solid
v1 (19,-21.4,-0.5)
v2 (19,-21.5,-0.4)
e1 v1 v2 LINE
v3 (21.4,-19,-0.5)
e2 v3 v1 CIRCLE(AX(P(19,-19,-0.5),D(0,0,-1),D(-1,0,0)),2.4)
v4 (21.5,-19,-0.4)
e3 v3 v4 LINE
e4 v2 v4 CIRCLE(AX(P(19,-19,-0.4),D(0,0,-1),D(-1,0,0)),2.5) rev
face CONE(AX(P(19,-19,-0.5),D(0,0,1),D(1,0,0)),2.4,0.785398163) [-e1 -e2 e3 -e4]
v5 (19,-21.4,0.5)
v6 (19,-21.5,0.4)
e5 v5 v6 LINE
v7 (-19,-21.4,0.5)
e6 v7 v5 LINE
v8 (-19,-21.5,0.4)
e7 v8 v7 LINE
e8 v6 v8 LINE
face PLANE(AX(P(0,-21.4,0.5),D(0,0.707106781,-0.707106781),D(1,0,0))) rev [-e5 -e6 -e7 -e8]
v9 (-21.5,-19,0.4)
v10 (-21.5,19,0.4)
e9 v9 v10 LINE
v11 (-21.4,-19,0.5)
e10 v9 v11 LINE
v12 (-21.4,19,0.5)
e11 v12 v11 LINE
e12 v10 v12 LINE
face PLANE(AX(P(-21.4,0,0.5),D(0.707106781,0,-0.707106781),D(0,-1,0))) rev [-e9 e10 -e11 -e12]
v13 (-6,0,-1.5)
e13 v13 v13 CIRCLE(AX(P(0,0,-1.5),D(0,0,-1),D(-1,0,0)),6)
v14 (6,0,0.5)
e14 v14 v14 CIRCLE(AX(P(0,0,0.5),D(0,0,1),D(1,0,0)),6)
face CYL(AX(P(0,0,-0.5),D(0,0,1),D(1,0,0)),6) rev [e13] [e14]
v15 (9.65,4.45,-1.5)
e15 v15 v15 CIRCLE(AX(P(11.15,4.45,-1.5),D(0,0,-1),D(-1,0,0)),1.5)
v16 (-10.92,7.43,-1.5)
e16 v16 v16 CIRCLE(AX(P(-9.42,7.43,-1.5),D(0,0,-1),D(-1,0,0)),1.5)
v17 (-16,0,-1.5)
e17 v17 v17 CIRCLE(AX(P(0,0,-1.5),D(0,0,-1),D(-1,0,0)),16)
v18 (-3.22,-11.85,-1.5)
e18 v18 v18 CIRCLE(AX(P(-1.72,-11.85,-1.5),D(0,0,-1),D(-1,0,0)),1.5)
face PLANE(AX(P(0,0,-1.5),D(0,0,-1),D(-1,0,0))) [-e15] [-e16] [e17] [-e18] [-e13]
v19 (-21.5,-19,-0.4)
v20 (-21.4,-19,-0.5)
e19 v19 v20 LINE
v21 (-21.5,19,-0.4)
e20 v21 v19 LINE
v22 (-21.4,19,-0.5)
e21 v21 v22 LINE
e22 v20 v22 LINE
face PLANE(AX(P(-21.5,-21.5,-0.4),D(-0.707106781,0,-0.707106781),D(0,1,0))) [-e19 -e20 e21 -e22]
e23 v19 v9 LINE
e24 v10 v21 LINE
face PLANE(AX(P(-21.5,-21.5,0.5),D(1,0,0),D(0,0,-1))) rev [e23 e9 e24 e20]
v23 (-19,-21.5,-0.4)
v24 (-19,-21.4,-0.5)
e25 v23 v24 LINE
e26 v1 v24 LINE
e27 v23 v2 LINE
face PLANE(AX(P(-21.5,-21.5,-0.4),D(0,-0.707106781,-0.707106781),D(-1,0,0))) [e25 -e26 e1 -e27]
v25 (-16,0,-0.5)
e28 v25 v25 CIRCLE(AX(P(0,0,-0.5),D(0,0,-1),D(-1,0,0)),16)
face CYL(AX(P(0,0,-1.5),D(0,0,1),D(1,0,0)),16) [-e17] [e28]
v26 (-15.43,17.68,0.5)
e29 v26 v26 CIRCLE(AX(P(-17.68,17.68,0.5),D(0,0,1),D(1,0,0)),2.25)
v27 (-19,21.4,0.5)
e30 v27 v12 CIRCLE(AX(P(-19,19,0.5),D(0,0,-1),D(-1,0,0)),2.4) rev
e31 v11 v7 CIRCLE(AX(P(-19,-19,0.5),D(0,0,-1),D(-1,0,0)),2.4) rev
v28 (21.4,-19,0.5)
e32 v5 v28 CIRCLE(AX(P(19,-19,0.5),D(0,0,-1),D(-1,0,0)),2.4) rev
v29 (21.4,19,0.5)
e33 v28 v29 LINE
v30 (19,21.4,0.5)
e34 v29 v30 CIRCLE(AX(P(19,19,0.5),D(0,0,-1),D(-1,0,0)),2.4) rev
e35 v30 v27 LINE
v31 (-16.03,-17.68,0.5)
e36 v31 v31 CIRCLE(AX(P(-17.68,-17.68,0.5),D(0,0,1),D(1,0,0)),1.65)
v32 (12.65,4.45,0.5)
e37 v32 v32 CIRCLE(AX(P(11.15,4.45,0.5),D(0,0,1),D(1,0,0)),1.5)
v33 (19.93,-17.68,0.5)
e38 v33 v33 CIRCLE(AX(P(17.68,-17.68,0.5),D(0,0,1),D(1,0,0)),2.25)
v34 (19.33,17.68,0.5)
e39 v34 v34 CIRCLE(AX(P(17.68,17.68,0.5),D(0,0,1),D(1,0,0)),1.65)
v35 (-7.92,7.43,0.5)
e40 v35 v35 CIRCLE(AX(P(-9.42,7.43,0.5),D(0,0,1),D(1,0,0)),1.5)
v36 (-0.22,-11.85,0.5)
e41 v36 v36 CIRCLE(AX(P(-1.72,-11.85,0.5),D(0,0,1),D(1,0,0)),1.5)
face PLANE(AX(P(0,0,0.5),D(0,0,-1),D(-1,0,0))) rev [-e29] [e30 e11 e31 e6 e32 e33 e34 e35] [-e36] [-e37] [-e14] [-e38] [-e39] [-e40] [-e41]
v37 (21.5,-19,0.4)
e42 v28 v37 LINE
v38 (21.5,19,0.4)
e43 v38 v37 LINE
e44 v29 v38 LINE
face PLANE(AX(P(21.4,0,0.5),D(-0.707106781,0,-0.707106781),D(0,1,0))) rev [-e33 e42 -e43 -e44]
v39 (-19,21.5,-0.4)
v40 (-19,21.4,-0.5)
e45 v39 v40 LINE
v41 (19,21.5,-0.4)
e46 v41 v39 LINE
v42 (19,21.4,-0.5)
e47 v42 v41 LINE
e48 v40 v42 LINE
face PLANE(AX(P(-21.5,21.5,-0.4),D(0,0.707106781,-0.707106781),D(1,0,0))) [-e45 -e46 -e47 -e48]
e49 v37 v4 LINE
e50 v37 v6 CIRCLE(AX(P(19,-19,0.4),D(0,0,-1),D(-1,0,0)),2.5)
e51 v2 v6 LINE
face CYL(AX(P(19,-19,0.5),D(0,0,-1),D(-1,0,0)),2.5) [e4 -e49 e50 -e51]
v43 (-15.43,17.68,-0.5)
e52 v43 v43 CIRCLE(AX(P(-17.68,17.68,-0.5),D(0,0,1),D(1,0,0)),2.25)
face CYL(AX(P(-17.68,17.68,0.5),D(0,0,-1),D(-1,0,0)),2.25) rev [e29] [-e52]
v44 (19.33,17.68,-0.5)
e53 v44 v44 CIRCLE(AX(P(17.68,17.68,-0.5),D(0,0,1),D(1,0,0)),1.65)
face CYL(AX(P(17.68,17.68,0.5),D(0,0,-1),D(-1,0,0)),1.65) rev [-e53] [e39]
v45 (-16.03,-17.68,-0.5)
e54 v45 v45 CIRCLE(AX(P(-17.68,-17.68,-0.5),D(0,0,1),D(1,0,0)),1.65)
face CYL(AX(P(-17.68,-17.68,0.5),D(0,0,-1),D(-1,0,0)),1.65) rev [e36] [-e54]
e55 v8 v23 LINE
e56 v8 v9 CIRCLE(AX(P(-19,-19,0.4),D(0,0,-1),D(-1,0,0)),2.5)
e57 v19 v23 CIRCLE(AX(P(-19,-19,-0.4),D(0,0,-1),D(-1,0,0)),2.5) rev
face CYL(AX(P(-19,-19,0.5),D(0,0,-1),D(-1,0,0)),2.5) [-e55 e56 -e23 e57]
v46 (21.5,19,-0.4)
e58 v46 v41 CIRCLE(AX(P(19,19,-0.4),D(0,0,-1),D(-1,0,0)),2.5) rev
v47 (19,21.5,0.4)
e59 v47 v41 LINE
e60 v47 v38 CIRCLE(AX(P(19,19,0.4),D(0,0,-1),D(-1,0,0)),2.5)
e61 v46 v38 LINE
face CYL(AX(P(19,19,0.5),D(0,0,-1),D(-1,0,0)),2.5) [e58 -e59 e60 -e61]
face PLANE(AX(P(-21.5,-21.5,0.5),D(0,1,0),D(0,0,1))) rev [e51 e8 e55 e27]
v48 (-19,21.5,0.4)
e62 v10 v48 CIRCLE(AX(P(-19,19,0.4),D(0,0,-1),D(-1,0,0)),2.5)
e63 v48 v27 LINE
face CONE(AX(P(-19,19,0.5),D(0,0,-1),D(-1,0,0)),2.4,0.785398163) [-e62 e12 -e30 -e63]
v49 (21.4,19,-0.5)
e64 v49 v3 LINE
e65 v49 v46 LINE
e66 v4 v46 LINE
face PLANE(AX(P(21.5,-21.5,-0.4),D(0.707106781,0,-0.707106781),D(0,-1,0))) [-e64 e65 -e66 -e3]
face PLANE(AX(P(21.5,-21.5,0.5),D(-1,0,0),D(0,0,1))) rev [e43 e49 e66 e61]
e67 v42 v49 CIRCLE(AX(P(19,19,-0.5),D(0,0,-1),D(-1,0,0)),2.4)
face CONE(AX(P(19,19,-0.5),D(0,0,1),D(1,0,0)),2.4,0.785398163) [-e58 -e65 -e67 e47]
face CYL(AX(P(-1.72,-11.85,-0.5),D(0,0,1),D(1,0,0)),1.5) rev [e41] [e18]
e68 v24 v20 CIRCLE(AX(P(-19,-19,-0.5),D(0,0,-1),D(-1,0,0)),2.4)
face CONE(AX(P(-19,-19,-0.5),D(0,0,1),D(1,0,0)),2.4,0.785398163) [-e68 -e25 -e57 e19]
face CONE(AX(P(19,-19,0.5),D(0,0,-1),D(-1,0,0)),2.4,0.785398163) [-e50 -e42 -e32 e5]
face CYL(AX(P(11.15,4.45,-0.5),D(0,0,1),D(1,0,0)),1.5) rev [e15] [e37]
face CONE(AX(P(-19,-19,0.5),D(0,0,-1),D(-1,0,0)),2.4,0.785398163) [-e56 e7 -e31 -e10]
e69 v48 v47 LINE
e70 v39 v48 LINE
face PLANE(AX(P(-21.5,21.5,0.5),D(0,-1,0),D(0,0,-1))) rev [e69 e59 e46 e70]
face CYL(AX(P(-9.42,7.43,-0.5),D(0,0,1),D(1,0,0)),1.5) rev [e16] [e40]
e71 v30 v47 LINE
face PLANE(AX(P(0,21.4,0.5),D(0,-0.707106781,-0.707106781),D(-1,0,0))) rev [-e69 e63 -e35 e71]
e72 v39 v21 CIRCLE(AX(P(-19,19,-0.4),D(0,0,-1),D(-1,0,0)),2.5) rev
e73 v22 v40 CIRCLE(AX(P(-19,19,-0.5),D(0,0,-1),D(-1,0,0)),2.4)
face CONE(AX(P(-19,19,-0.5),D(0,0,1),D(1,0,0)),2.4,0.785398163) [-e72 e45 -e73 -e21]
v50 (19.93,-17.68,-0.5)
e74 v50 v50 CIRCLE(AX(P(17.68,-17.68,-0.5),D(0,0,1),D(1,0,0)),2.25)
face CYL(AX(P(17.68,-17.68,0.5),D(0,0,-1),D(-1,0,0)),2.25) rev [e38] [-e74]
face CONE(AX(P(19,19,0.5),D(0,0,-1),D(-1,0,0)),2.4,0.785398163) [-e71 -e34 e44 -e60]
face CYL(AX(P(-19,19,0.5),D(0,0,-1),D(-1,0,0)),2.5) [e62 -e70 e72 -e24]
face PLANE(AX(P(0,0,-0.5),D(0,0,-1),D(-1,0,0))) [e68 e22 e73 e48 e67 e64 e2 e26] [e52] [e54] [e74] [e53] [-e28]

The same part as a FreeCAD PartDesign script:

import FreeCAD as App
import Part
import Sketcher

V = App.Vector
Q = App.Units.Quantity


def edges_at(feature, points):
    """Names of the edges that pass closest to the given points."""
    edges = feature.Shape.Edges
    near = lambda p: min(range(len(edges)), key=lambda i: edges[i].distToShape(Part.Vertex(*p))[0])
    return sorted({f"Edge{near(p) + 1}" for p in points})

doc = App.newDocument("Part")
params = doc.addObject("Spreadsheet::Sheet", "Params")
for row, (alias, value) in enumerate([
    ("sketch1_diameter", "3.3 mm"),
    ("sketch1_diameter2", "4.5 mm"),
    ("sketch1_width", "43 mm"),
    ("pad1_length", "1 mm"),
    ("sketch2_diameter", "12 mm"),
    ("pocket1_length", "1 mm"),
    ("fillet_radius", "2.5 mm"),
    ("chamfer_size", "0.1 mm"),
    ("sketch3_diameter", "3 mm"),
    ("sketch4_diameter", "32 mm"),
    ("sketch4_diameter2", "3 mm"),
    ("sketch4_diameter3", "12 mm"),
    ("pad2_length", "1 mm"),
], start=1):
    params.set(f"A{row}", alias)
    params.set(f"B{row}", "=" + value)
    params.setAlias(f"B{row}", alias)

body = doc.addObject("PartDesign::Body", "Body")

# Sketch on XY plane
sketch1 = doc.addObject("Sketcher::SketchObject", "Sketch")
body.addObject(sketch1)
sketch1.AttachmentSupport = (doc.XY_Plane, [""])
sketch1.MapMode = "FlatFace"
sketch1.addGeometry([
    Part.LineSegment(V(-21.5, 21.5, 0), V(-21.5, -21.5, 0)),  # 0
    Part.LineSegment(V(-21.5, -21.5, 0), V(21.5, -21.5, 0)),  # 1
    Part.LineSegment(V(21.5, -21.5, 0), V(21.5, 21.5, 0)),  # 2
    Part.LineSegment(V(21.5, 21.5, 0), V(-21.5, 21.5, 0)),  # 3
    Part.Circle(V(-17.7, -17.7, 0), V(0, 0, 1), 1.6),  # 4
    Part.Circle(V(17.7, -17.7, 0), V(0, 0, 1), 2.2),  # 5
    Part.Circle(V(-17.7, 17.7, 0), V(0, 0, 1), 2.2),  # 6
    Part.Circle(V(17.7, 17.7, 0), V(0, 0, 1), 1.6),  # 7
], False)
sketch1.addConstraint([
    Sketcher.Constraint("Coincident", 0, 2, 1, 1),
    Sketcher.Constraint("Coincident", 1, 2, 2, 1),
    Sketcher.Constraint("Coincident", 2, 2, 3, 1),
    Sketcher.Constraint("Coincident", 3, 2, 0, 1),
    Sketcher.Constraint("Vertical", 0),
    Sketcher.Constraint("Horizontal", 1),
    Sketcher.Constraint("Vertical", 2),
    Sketcher.Constraint("Horizontal", 3),
    Sketcher.Constraint("Equal", 5, 6),
    Sketcher.Constraint("Equal", 4, 7),
    Sketcher.Constraint("Symmetric", 5, 3, 6, 3, -1, 1),
    Sketcher.Constraint("Symmetric", 4, 3, 7, 3, -1, 1),
    Sketcher.Constraint("Symmetric", 0, 2, 2, 2, -1, 1),
    Sketcher.Constraint("Symmetric", 4, 3, 5, 3, -2),
    Sketcher.Constraint("Equal", 3, 0),
    Sketcher.Constraint("Diameter", 4, Q("3.3 mm")),
    Sketcher.Constraint("Diameter", 5, Q("4.5 mm")),
    Sketcher.Constraint("DistanceX", 1, 1, 1, 2, Q("43 mm")),
    Sketcher.Constraint("DistanceX", 4, 3, -1, 1, Q("17.68 mm")),
    Sketcher.Constraint("DistanceY", 4, 3, -1, 1, Q("17.68 mm")),
])
sketch1.setExpression("Constraints[15]", "Params.sketch1_diameter")
sketch1.setExpression("Constraints[16]", "Params.sketch1_diameter2")
sketch1.setExpression("Constraints[17]", "Params.sketch1_width")
pad1 = doc.addObject("PartDesign::Pad", "Pad")
body.addObject(pad1)
pad1.Profile = sketch1
pad1.setExpression("Length", "Params.pad1_length")
pad1.Midplane = True

# Sketch on XY plane
sketch2 = doc.addObject("Sketcher::SketchObject", "Sketch001")
body.addObject(sketch2)
sketch2.AttachmentSupport = (doc.XY_Plane, [""])
sketch2.MapMode = "FlatFace"
sketch2.AttachmentOffset = App.Placement(V(0, 0, 0.5), App.Rotation())
sketch2.addGeometry(Part.Circle(V(0, 0, 0), V(0, 0, 1), 6), False)
sketch2.addConstraint([
    Sketcher.Constraint("Coincident", 0, 3, -1, 1),
    Sketcher.Constraint("Diameter", 0, Q("12 mm")),
])
sketch2.setExpression("Constraints[1]", "Params.sketch2_diameter")
pocket1 = doc.addObject("PartDesign::Pocket", "Pocket")
body.addObject(pocket1)
pocket1.Profile = sketch2
pocket1.setExpression("Length", "Params.pocket1_length")
doc.recompute()

fillet = doc.addObject("PartDesign::Fillet", "Fillet")
body.addObject(fillet)
fillet.Base = (pocket1, edges_at(pocket1, [
    (21.5, -21.5, 0),
    (-21.5, -21.5, 0),
    (-21.5, 21.5, 0),
    (21.5, 21.5, 0),
]))
fillet.setExpression("Radius", "Params.fillet_radius")
doc.recompute()

chamfer = doc.addObject("PartDesign::Chamfer", "Chamfer")
body.addObject(chamfer)
chamfer.Base = (fillet, edges_at(fillet, [
    (0, -21.5, -0.5),
    (0, -21.5, 0.5),
    (21.5, 0, -0.5),
    (-21.5, 0, -0.5),
    (0, 21.5, -0.5),
    (-20.768, 20.768, -0.5),
    (20.768, 20.768, -0.5),
    (20.768, -20.768, -0.5),
    (-20.768, -20.768, -0.5),
    (-21.5, 0, 0.5),
    (21.5, 0, 0.5),
    (0, 21.5, 0.5),
    (-20.768, 20.768, 0.5),
    (20.768, 20.768, 0.5),
    (20.768, -20.768, 0.5),
    (-20.768, -20.768, 0.5),
]))
chamfer.setExpression("Size", "Params.chamfer_size")

# Sketch on XY plane
sketch3 = doc.addObject("Sketcher::SketchObject", "Sketch002")
body.addObject(sketch3)
sketch3.AttachmentSupport = (doc.XY_Plane, [""])
sketch3.MapMode = "FlatFace"
sketch3.AttachmentOffset = App.Placement(V(0, 0, 0.5), App.Rotation())
sketch3.addGeometry([
    Part.Circle(V(-9.4, 7.4, 0), V(0, 0, 1), 1.5),
    Part.Circle(V(11.2, 4.5, 0), V(0, 0, 1), 1.5),
    Part.Circle(V(-1.7, -11.8, 0), V(0, 0, 1), 1.5),
], False)
sketch3.addConstraint([
    Sketcher.Constraint("Equal", 0, 1),
    Sketcher.Constraint("Equal", 1, 2),
    Sketcher.Constraint("Diameter", 0, Q("3 mm")),
    Sketcher.Constraint("DistanceX", 0, 3, 2, 3, Q("7.7 mm")),
    Sketcher.Constraint("DistanceY", 2, 3, 1, 3, Q("16.3 mm")),
    Sketcher.Constraint("DistanceX", 0, 3, -1, 1, Q("9.42 mm")),
    Sketcher.Constraint("DistanceY", -1, 1, 0, 3, Q("7.43 mm")),
    Sketcher.Constraint("DistanceX", -1, 1, 1, 3, Q("11.15 mm")),
    Sketcher.Constraint("DistanceY", -1, 1, 1, 3, Q("4.45 mm")),
])
sketch3.setExpression("Constraints[2]", "Params.sketch3_diameter")
pocket2 = doc.addObject("PartDesign::Pocket", "Pocket001")
body.addObject(pocket2)
pocket2.Profile = sketch3
pocket2.Type = "ThroughAll"

# Sketch on XY plane
sketch4 = doc.addObject("Sketcher::SketchObject", "Sketch003")
body.addObject(sketch4)
sketch4.AttachmentSupport = (doc.XY_Plane, [""])
sketch4.MapMode = "FlatFace"
sketch4.AttachmentOffset = App.Placement(V(0, 0, -0.5), App.Rotation())
sketch4.addGeometry([
    Part.Circle(V(0, 0, 0), V(0, 0, 1), 16),  # 0
    Part.Circle(V(-1.7, -11.8, 0), V(0, 0, 1), 1.5),  # 1
    Part.Circle(V(11.2, 4.5, 0), V(0, 0, 1), 1.5),  # 2
    Part.Circle(V(0, 0, 0), V(0, 0, 1), 6),  # 3
    Part.Circle(V(-9.4, 7.4, 0), V(0, 0, 1), 1.5),  # 4
], False)
sketch4.addConstraint([
    Sketcher.Constraint("Coincident", 0, 3, -1, 1),
    Sketcher.Constraint("Coincident", 3, 3, -1, 1),
    Sketcher.Constraint("Equal", 1, 2),
    Sketcher.Constraint("Equal", 2, 4),
    Sketcher.Constraint("Diameter", 0, Q("32 mm")),
    Sketcher.Constraint("Diameter", 1, Q("3 mm")),
    Sketcher.Constraint("Diameter", 3, Q("12 mm")),
    Sketcher.Constraint("DistanceY", 1, 3, 2, 3, Q("16.3 mm")),
    Sketcher.Constraint("DistanceX", 4, 3, 1, 3, Q("7.7 mm")),
    Sketcher.Constraint("DistanceX", 1, 3, -1, 1, Q("1.72 mm")),
    Sketcher.Constraint("DistanceY", 1, 3, -1, 1, Q("11.85 mm")),
    Sketcher.Constraint("DistanceX", -1, 1, 2, 3, Q("11.15 mm")),
    Sketcher.Constraint("DistanceY", -1, 1, 4, 3, Q("7.43 mm")),
])
sketch4.setExpression("Constraints[4]", "Params.sketch4_diameter")
sketch4.setExpression("Constraints[5]", "Params.sketch4_diameter2")
sketch4.setExpression("Constraints[6]", "Params.sketch4_diameter3")
pad2 = doc.addObject("PartDesign::Pad", "Pad001")
body.addObject(pad2)
pad2.Profile = sketch4
pad2.setExpression("Length", "Params.pad2_length")
pad2.Reversed = True

doc.recompute()
